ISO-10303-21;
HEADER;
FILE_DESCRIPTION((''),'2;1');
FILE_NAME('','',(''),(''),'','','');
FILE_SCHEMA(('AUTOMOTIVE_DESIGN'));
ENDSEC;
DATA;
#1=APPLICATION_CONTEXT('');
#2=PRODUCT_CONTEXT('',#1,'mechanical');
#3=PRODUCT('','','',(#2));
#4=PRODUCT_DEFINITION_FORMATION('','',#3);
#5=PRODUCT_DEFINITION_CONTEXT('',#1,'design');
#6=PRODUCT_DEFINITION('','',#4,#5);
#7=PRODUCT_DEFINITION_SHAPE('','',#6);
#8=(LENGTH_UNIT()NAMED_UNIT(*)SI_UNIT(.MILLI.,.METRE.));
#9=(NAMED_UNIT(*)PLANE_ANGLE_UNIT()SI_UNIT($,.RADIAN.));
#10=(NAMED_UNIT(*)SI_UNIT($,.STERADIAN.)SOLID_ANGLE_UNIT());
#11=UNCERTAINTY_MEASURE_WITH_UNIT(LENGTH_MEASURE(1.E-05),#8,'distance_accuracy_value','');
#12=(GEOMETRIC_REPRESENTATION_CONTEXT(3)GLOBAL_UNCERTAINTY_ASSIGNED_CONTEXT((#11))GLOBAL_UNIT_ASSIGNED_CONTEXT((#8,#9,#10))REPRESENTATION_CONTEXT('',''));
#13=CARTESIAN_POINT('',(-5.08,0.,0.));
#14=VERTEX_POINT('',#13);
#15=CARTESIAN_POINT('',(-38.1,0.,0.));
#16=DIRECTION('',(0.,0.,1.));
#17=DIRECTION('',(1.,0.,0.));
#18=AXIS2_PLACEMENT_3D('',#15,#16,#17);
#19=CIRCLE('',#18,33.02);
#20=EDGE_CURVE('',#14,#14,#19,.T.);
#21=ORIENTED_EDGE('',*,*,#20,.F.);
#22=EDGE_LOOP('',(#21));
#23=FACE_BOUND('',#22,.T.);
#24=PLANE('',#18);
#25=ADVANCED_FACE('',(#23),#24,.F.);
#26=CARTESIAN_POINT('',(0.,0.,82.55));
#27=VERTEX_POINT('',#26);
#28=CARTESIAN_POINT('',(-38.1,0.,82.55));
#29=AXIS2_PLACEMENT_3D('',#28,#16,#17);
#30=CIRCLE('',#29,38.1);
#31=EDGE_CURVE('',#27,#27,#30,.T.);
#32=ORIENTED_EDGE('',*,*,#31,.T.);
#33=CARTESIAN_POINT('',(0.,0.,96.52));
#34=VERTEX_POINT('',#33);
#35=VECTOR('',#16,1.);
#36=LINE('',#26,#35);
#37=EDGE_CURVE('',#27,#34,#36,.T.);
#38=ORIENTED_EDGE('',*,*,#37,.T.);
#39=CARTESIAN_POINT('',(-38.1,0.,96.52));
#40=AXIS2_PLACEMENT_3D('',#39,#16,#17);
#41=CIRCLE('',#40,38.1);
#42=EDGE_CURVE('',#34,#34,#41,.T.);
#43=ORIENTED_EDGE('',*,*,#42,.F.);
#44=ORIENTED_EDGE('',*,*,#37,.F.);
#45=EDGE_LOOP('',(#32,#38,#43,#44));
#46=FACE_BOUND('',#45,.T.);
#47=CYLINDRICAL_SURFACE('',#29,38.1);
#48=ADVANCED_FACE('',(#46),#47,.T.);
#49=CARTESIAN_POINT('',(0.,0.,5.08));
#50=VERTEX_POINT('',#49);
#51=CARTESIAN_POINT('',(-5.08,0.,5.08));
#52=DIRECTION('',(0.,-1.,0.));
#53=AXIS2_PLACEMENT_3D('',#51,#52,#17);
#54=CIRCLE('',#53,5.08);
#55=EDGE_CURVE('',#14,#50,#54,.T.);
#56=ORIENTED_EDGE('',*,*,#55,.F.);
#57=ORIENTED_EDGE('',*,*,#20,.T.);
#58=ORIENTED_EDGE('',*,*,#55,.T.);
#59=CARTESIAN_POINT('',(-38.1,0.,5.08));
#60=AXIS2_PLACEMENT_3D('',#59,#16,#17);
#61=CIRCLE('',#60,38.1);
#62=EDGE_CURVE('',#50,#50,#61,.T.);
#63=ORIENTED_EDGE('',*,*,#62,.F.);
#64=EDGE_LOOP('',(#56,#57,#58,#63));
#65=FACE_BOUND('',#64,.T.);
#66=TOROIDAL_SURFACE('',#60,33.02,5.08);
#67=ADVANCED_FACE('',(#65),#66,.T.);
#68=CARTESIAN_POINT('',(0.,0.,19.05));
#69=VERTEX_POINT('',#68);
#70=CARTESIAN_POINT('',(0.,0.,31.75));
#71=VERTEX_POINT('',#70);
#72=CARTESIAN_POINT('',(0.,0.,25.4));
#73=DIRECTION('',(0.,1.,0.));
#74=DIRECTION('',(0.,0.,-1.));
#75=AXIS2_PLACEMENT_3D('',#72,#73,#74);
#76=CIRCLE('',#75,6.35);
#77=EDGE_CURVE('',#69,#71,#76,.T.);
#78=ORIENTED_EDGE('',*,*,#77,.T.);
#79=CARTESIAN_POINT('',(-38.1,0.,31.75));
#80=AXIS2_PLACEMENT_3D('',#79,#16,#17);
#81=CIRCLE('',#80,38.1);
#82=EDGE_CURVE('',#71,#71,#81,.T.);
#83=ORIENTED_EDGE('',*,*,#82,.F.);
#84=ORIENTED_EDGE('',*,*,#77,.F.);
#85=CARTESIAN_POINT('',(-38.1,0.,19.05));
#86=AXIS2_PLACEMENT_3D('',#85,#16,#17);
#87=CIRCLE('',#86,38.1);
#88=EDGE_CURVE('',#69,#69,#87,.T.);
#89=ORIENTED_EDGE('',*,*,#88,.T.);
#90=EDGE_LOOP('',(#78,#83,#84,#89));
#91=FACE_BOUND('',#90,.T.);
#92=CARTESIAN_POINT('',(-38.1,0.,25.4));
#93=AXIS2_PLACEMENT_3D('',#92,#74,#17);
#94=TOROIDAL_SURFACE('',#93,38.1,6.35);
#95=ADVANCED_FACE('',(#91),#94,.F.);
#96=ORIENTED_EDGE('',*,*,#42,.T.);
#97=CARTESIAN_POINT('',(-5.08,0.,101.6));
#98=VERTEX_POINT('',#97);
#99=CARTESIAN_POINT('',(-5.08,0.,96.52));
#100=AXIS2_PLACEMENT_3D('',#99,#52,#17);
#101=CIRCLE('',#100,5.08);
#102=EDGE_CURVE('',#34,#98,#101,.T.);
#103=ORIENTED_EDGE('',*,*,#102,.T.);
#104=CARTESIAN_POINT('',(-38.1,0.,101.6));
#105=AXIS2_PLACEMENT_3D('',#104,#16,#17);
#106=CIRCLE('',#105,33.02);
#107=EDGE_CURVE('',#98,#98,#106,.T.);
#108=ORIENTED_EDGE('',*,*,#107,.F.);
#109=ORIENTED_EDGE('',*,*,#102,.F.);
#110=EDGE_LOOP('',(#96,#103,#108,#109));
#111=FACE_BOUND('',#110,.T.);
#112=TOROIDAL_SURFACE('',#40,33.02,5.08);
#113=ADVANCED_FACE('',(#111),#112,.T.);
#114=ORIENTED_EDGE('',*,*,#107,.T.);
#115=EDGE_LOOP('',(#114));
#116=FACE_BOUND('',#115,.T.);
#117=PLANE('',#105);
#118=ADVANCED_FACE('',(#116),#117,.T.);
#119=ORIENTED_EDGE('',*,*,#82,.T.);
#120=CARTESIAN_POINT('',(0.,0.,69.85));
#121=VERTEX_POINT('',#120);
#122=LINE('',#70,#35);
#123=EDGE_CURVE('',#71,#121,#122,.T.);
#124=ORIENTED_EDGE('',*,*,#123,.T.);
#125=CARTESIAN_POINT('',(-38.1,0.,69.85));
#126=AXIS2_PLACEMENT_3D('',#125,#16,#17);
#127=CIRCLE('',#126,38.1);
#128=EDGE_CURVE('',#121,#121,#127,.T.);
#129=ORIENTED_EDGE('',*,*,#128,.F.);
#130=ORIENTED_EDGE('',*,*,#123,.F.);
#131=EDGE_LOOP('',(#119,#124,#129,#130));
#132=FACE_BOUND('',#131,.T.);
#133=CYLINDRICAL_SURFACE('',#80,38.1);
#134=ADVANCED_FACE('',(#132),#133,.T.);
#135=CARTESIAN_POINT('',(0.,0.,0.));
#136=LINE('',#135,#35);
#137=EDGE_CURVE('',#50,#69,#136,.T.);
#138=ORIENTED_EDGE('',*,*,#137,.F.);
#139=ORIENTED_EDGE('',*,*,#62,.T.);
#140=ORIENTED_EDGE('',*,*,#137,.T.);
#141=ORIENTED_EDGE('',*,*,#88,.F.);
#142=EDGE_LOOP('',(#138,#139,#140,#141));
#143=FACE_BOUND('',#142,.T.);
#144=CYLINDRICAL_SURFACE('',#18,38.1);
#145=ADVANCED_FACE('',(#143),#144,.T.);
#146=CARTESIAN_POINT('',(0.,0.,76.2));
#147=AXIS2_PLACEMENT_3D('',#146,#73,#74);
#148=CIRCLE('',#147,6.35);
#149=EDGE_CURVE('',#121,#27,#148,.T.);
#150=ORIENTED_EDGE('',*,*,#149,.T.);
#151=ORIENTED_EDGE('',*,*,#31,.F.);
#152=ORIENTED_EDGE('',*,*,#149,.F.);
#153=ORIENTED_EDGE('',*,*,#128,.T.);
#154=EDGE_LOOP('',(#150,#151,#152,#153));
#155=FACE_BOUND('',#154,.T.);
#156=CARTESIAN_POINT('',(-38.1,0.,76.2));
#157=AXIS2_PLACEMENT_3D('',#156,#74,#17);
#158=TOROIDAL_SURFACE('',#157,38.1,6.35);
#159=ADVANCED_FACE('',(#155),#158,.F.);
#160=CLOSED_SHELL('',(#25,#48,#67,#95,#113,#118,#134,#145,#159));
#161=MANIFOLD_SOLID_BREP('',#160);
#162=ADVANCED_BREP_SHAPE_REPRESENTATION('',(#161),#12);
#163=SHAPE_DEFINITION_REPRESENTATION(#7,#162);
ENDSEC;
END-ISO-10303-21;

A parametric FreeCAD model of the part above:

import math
import FreeCAD as App
import Part
import Sketcher
Q = App.Units.Quantity


def edges_at(feature, points):
    """Names of the edges that pass closest to the given points."""
    edges = feature.Shape.Edges
    near = lambda p: min(range(len(edges)), key=lambda i: edges[i].distToShape(Part.Vertex(*p))[0])
    return sorted({f"Edge{near(p) + 1}" for p in points})

doc = App.newDocument("Part")
body = doc.addObject("PartDesign::Body", "Body")

sketch1 = body.newObject("Sketcher::SketchObject", "Sketch")
sketch1.AttachmentSupport = (doc.getObject("XZ_Plane"), [""])
sketch1.MapMode = "FlatFace"
sketch1.addGeometry(Part.LineSegment(App.Vector(-38.1, 0, 0), App.Vector(0, 0, 0)), False)
sketch1.addGeometry(Part.LineSegment(App.Vector(0, 0, 0), App.Vector(0, 19.05, 0)), False)
sketch1.addGeometry(Part.ArcOfCircle(Part.Circle(App.Vector(0, 25.4, 0), App.Vector(0, 0, 1), 6.35), math.radians(90), math.radians(270)), False)
sketch1.addGeometry(Part.LineSegment(App.Vector(0, 31.75, 0), App.Vector(0, 69.85, 0)), False)
sketch1.addGeometry(Part.ArcOfCircle(Part.Circle(App.Vector(0, 76.2, 0), App.Vector(0, 0, 1), 6.35), math.radians(90), math.radians(270)), False)
sketch1.addGeometry(Part.LineSegment(App.Vector(0, 82.55, 0), App.Vector(0, 101.6, 0)), False)
sketch1.addGeometry(Part.LineSegment(App.Vector(0, 101.6, 0), App.Vector(-38.1, 101.6, 0)), False)
sketch1.addGeometry(Part.LineSegment(App.Vector(-38.1, 101.6, 0), App.Vector(-38.1, 0, 0)), False)
sketch1.addGeometry(Part.LineSegment(App.Vector(-38.1, 0, 0), App.Vector(-38.1, 101.6, 0)), True)
sketch1.addConstraint(Sketcher.Constraint("Coincident", 0, 2, 1, 1))
sketch1.addConstraint(Sketcher.Constraint("Coincident", 1, 2, 2, 2))
sketch1.addConstraint(Sketcher.Constraint("Coincident", 2, 1, 3, 1))
sketch1.addConstraint(Sketcher.Constraint("Coincident", 3, 2, 4, 2))
sketch1.addConstraint(Sketcher.Constraint("Coincident", 4, 1, 5, 1))
sketch1.addConstraint(Sketcher.Constraint("Coincident", 5, 2, 6, 1))
sketch1.addConstraint(Sketcher.Constraint("Coincident", 6, 2, 7, 1))
sketch1.addConstraint(Sketcher.Constraint("Coincident", 7, 2, 0, 1))
sketch1.addConstraint(Sketcher.Constraint("Horizontal", 0))
sketch1.addConstraint(Sketcher.Constraint("Vertical", 1))
sketch1.addConstraint(Sketcher.Constraint("Vertical", 3))
sketch1.addConstraint(Sketcher.Constraint("Vertical", 5))
sketch1.addConstraint(Sketcher.Constraint("Horizontal", 6))
sketch1.addConstraint(Sketcher.Constraint("Vertical", 7))
sketch1.addConstraint(Sketcher.Constraint("Vertical", 8))
sketch1.addConstraint(Sketcher.Constraint("Coincident", 0, 2, -1, 1))
sketch1.addConstraint(Sketcher.Constraint("Coincident", 8, 1, 7, 2))
sketch1.addConstraint(Sketcher.Constraint("Equal", 2, 4))
sketch1.addConstraint(Sketcher.Constraint("PointOnObject", 2, 3, -2))
sketch1.addConstraint(Sketcher.Constraint("PointOnObject", 4, 3, -2))
sketch1.addConstraint(Sketcher.Constraint("PointOnObject", 2, 1, -2))
sketch1.addConstraint(Sketcher.Constraint("PointOnObject", 4, 1, -2))
sketch1.addConstraint(Sketcher.Constraint("Horizontal", 5, 2, 8, 2))
sketch1.addConstraint(Sketcher.Constraint("Equal", 6, 3))
sketch1.addConstraint(Sketcher.Constraint("Equal", 1, 5))
sketch1.addConstraint(Sketcher.Constraint("DistanceY", 7, 2, 7, 1, Q("4 in")))
sketch1.addConstraint(Sketcher.Constraint("Radius", 2, Q("0.25 in")))
sketch1.addConstraint(Sketcher.Constraint("DistanceX", 0, 1, 0, 2, Q("1.5 in")))
revolution = body.newObject("PartDesign::Revolution", "Revolution")
revolution.Profile = sketch1
revolution.ReferenceAxis = (sketch1, ["Axis0"])
revolution.Angle = 360
doc.recompute()

fillet = body.newObject("PartDesign::Fillet", "Fillet")
fillet.Base = (revolution, edges_at(revolution, [(-76.2, 0, 101.6), (-76.2, 0, 0)]))
fillet.Radius = Q("0.2 in")

doc.recompute()
